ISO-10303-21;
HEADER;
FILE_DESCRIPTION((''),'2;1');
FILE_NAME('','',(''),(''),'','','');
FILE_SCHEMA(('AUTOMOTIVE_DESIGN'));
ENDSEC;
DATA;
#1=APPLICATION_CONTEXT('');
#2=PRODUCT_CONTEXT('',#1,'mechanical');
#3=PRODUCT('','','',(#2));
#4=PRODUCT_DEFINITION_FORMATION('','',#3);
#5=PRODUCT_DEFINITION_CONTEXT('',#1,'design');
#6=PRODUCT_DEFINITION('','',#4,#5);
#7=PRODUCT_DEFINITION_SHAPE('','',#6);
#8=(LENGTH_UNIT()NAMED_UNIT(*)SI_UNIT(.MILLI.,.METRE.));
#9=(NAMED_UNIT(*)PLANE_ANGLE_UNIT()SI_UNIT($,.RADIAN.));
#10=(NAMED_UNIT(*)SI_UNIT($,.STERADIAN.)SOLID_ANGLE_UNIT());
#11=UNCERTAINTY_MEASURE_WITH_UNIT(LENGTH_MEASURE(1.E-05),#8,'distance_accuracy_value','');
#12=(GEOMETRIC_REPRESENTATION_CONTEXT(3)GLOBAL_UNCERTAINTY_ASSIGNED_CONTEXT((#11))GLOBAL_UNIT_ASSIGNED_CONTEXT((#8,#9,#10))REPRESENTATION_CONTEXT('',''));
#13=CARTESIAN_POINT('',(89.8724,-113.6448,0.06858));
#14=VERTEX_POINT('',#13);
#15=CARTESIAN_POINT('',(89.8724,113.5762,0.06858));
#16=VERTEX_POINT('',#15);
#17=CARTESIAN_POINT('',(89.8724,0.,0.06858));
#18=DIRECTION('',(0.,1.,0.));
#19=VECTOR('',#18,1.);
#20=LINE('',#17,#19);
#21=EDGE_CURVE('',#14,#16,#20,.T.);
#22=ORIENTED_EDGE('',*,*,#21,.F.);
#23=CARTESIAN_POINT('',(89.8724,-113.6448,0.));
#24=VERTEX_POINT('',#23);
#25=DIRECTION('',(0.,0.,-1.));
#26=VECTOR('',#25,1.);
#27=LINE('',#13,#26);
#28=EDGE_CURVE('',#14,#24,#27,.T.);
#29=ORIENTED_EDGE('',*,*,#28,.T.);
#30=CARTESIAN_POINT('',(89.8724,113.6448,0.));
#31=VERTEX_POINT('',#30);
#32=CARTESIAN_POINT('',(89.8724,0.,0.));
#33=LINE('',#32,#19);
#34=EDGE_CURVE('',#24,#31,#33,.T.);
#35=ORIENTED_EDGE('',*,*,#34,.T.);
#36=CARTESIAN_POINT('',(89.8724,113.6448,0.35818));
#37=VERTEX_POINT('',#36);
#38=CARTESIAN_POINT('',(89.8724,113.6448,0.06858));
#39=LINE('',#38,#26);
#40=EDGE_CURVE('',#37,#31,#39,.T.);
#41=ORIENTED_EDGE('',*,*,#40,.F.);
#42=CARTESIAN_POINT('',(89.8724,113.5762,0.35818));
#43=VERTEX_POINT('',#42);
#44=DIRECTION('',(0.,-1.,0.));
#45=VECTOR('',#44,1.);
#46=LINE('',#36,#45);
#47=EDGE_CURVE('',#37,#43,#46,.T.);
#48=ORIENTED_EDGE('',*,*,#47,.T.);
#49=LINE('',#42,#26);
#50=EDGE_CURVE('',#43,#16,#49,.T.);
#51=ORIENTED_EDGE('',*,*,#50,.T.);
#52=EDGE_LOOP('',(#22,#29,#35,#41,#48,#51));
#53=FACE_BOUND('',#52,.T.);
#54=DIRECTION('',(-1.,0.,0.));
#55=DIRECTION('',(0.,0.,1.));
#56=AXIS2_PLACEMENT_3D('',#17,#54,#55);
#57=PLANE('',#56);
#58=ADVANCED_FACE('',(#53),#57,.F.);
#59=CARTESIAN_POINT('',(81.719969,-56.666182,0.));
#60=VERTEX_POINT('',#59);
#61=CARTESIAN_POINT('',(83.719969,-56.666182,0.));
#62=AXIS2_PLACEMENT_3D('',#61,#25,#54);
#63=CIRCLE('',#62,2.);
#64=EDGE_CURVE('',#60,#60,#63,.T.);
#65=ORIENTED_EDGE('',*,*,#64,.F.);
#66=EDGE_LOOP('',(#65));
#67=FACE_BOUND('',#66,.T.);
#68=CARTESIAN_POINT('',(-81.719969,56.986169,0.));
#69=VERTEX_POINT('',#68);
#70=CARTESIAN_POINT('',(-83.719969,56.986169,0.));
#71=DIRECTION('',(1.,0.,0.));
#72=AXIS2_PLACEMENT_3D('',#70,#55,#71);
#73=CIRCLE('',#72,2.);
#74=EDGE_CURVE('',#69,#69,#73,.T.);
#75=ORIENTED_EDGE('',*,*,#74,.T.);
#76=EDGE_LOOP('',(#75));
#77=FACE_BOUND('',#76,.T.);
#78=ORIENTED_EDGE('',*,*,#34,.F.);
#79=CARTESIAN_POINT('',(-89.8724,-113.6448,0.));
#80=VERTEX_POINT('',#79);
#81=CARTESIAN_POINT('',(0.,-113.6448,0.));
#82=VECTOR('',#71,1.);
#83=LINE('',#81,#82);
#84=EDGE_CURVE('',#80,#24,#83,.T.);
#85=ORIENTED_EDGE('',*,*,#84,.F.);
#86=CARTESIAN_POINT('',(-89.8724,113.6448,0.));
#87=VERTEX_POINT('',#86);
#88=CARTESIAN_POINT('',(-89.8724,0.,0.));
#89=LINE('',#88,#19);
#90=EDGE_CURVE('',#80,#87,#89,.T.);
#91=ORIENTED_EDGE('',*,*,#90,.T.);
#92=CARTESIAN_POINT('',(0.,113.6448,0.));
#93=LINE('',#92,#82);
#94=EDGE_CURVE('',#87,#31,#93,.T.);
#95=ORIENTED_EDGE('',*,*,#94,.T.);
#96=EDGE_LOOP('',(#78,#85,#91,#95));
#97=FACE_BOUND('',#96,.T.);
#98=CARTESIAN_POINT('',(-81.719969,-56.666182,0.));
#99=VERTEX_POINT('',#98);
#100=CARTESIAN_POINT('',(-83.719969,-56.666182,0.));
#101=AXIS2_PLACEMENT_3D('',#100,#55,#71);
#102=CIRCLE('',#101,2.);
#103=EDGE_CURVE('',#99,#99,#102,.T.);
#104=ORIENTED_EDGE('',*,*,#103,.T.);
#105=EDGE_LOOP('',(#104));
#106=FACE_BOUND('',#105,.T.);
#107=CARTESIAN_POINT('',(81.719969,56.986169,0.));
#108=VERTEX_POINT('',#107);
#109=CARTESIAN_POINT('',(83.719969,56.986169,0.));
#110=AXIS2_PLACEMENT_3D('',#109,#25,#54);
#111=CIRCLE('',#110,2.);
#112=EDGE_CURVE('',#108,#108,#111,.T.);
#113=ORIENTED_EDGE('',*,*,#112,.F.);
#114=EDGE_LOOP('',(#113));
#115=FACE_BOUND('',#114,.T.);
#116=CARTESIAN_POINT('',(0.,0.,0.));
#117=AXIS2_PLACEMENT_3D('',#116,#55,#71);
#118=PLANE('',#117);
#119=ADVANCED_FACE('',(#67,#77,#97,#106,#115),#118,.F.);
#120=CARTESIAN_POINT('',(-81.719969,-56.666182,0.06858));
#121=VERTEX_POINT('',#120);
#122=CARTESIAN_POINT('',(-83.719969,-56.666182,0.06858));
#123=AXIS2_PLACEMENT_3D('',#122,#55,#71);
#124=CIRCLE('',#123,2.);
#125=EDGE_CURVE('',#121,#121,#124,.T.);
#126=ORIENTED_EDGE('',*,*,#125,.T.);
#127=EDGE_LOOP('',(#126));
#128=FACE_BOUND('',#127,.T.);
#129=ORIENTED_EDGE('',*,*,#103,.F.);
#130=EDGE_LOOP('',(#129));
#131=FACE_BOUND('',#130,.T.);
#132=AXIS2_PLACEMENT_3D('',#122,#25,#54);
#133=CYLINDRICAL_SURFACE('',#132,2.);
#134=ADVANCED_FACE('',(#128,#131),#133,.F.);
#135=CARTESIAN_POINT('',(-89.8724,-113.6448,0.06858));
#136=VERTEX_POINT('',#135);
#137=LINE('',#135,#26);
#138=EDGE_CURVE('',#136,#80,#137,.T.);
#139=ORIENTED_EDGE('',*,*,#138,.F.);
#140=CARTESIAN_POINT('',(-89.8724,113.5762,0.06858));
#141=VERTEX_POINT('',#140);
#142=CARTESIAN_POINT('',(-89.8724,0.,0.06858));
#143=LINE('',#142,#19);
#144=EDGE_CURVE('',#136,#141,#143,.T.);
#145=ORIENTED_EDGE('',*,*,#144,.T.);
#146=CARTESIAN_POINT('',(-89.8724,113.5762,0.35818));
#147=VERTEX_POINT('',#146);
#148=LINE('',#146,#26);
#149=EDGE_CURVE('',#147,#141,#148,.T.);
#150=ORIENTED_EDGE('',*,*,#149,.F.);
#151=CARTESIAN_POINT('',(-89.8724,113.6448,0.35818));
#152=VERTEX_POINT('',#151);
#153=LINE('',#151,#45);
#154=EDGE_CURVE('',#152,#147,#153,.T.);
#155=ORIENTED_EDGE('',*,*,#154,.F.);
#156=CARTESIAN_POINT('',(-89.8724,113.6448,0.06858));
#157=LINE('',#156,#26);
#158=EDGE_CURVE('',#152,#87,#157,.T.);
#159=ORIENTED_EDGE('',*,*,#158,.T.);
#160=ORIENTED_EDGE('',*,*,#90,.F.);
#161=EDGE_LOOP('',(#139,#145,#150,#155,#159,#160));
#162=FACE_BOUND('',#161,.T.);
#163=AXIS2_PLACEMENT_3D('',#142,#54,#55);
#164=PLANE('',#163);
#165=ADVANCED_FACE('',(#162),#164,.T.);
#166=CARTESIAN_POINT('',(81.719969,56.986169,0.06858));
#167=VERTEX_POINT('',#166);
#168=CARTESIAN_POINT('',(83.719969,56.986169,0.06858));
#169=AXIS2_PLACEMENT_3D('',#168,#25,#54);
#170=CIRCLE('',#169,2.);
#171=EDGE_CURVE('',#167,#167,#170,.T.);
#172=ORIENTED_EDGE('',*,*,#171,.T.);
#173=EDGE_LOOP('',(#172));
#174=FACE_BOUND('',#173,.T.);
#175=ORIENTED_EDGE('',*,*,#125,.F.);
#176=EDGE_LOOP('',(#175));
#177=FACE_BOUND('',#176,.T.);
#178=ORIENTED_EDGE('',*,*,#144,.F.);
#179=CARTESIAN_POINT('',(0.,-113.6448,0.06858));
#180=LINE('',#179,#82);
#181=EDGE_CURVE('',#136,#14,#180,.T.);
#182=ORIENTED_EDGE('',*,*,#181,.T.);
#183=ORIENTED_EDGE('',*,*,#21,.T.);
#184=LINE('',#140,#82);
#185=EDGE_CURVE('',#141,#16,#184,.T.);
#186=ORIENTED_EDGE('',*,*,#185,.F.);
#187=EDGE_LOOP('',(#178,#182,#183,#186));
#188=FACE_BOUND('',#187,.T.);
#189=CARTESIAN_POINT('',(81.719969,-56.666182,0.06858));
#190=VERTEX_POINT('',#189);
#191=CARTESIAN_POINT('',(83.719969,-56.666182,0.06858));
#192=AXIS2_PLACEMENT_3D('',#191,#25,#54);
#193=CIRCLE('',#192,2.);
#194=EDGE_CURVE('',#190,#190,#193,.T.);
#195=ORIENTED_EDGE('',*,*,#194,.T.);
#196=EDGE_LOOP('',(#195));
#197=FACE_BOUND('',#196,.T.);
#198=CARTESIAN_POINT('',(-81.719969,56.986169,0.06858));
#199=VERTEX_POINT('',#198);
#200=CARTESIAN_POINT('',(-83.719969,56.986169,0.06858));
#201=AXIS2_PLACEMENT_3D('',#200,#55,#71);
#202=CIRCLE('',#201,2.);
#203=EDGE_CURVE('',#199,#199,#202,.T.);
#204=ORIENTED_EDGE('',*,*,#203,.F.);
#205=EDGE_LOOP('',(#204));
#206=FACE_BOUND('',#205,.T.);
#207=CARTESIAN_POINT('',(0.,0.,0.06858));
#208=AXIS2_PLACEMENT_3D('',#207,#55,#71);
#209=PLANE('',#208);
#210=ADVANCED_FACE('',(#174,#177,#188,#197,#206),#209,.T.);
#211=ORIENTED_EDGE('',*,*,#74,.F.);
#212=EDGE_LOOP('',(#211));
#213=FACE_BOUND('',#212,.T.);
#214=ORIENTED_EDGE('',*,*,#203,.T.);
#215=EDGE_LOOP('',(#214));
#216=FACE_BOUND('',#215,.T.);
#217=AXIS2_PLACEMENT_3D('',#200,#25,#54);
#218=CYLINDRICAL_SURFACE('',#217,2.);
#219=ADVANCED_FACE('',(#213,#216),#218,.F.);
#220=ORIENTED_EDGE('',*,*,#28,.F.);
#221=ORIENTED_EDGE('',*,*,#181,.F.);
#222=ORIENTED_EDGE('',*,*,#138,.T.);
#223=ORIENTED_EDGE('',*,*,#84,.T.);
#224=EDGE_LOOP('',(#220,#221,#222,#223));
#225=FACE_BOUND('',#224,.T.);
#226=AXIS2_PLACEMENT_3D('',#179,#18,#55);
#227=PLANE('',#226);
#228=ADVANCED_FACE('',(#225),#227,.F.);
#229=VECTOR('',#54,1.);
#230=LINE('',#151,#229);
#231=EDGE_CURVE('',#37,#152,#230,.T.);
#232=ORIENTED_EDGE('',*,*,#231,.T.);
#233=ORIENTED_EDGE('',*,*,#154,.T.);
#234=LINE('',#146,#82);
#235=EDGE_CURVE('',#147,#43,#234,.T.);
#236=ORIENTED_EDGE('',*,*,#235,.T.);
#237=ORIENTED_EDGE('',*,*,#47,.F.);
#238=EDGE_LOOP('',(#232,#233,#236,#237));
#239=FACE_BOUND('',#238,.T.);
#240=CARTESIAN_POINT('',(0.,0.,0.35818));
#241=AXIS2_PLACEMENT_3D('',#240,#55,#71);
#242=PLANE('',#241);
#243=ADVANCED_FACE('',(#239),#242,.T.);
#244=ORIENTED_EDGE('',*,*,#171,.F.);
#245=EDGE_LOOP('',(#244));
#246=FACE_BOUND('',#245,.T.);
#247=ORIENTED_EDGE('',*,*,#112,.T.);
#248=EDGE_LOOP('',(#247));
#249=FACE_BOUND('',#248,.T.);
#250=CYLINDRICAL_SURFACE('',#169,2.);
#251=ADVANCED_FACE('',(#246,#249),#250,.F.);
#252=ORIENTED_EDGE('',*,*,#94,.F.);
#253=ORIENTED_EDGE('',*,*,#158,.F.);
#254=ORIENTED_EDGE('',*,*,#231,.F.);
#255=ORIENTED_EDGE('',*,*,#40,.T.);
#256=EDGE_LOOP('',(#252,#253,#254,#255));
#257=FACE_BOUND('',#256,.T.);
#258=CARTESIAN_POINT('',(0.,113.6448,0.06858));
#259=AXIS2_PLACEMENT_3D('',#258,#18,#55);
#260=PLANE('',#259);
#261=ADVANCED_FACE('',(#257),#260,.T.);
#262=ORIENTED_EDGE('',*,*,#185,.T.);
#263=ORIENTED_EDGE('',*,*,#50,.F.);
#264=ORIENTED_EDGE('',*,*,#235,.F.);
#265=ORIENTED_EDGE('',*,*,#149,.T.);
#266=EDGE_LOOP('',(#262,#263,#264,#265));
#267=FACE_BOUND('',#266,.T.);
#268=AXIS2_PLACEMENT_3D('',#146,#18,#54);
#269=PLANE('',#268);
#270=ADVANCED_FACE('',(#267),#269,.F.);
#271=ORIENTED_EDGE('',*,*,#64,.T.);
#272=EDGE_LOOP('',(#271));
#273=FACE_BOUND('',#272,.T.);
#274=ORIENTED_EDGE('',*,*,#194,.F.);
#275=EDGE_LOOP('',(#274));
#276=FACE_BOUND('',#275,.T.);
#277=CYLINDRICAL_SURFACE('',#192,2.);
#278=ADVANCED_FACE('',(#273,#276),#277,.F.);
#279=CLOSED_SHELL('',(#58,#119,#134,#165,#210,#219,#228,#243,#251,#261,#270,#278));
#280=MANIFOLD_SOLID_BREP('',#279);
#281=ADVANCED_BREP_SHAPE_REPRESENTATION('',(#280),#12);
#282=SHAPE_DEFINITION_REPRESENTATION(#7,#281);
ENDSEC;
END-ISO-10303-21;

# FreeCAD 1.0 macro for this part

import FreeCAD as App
import Part
import Sketcher
Q = App.Units.Quantity

doc = App.newDocument("Part")
body = doc.addObject("PartDesign::Body", "Body")

# Sketch on XY plane
sketch1 = doc.addObject("Sketcher::SketchObject", "Sketch")
body.addObject(sketch1)
sketch1.AttachmentSupport = (doc.XY_Plane, [""])
sketch1.MapMode = "FlatFace"
sketch1.addGeometry([
    Part.LineSegment(App.Vector(-89.8724, 113.6448, 0), App.Vector(-89.8724, -113.6448, 0)),  # 0
    Part.LineSegment(App.Vector(-89.8724, -113.6448, 0), App.Vector(0, -113.6448, 0)),  # 1
    Part.LineSegment(App.Vector(0, -113.6448, 0), App.Vector(0, 113.6448, 0)),  # 2
    Part.LineSegment(App.Vector(0, 113.6448, 0), App.Vector(-89.8724, 113.6448, 0)),  # 3
    Part.Circle(App.Vector(-83.719969, -56.666182, 0), App.Vector(0, 0, 1), 2),  # 4
    Part.Circle(App.Vector(-83.719969, 56.986169, 0), App.Vector(0, 0, 1), 2),  # 5
], False)
sketch1.addConstraint([
    Sketcher.Constraint("Coincident", 0, 2, 1, 1),
    Sketcher.Constraint("Coincident", 1, 2, 2, 1),
    Sketcher.Constraint("Coincident", 2, 2, 3, 1),
    Sketcher.Constraint("Coincident", 3, 2, 0, 1),
    Sketcher.Constraint("Vertical", 0),
    Sketcher.Constraint("Horizontal", 1),
    Sketcher.Constraint("Vertical", 2),
    Sketcher.Constraint("Horizontal", 3),
    Sketcher.Constraint("Equal", 4, 5),
    Sketcher.Constraint("Symmetric", 1, 2, 2, 2, -1, 1),
    Sketcher.Constraint("Vertical", 4, 3, 5, 3),
    Sketcher.Constraint("Diameter", 4, Q("4 mm")),
    Sketcher.Constraint("DistanceX", 1, 1, 1, 2, Q("89.8724 mm")),
    Sketcher.Constraint("DistanceY", 0, 2, 0, 1, Q("227.2896 mm")),
    Sketcher.Constraint("DistanceX", 4, 3, -1, 1, Q("83.719969 mm")),
    Sketcher.Constraint("DistanceY", 4, 3, -1, 1, Q("56.666182 mm")),
    Sketcher.Constraint("DistanceY", -1, 1, 5, 3, Q("56.986169 mm")),
])
pad1 = doc.addObject("PartDesign::Pad", "Pad")
body.addObject(pad1)
pad1.Profile = sketch1
pad1.Length = 0.06858

# Sketch on XY plane
sketch2 = doc.addObject("Sketcher::SketchObject", "Sketch001")
body.addObject(sketch2)
sketch2.AttachmentSupport = (doc.XY_Plane, [""])
sketch2.MapMode = "FlatFace"
sketch2.AttachmentOffset = App.Placement(App.Vector(0, 0, 0.06858), App.Rotation())
sketch2.addGeometry([
    Part.LineSegment(App.Vector(0, 113.5762, 0), App.Vector(0, 113.6448, 0)),
    Part.LineSegment(App.Vector(0, 113.6448, 0), App.Vector(-89.8724, 113.6448, 0)),
    Part.LineSegment(App.Vector(-89.8724, 113.6448, 0), App.Vector(-89.8724, 113.5762, 0)),
    Part.LineSegment(App.Vector(-89.8724, 113.5762, 0), App.Vector(0, 113.5762, 0)),
], False)
sketch2.addConstraint([
    Sketcher.Constraint("Coincident", 0, 2, 1, 1),
    Sketcher.Constraint("Coincident", 1, 2, 2, 1),
    Sketcher.Constraint("Coincident", 2, 2, 3, 1),
    Sketcher.Constraint("Coincident", 3, 2, 0, 1),
    Sketcher.Constraint("Vertical", 0),
    Sketcher.Constraint("Horizontal", 1),
    Sketcher.Constraint("Vertical", 2),
    Sketcher.Constraint("Horizontal", 3),
    Sketcher.Constraint("PointOnObject", 0, 2, -2),
    Sketcher.Constraint("DistanceX", 1, 2, 1, 1, Q("89.8724 mm")),
    Sketcher.Constraint("DistanceY", 0, 1, 0, 2, Q("0.0686 mm")),
    Sketcher.Constraint("DistanceY", -1, 1, 0, 2, Q("113.6448 mm")),
])
pad2 = doc.addObject("PartDesign::Pad", "Pad001")
body.addObject(pad2)
pad2.Profile = sketch2
pad2.Length = 0.2896
doc.recompute()

mirrored = doc.addObject("PartDesign::Mirrored", "Mirrored")
body.addObject(mirrored)
mirrored.Originals = [pad1, pad2]
mirrored.MirrorPlane = (doc.YZ_Plane, [""])
body.Tip = mirrored

doc.recompute()
